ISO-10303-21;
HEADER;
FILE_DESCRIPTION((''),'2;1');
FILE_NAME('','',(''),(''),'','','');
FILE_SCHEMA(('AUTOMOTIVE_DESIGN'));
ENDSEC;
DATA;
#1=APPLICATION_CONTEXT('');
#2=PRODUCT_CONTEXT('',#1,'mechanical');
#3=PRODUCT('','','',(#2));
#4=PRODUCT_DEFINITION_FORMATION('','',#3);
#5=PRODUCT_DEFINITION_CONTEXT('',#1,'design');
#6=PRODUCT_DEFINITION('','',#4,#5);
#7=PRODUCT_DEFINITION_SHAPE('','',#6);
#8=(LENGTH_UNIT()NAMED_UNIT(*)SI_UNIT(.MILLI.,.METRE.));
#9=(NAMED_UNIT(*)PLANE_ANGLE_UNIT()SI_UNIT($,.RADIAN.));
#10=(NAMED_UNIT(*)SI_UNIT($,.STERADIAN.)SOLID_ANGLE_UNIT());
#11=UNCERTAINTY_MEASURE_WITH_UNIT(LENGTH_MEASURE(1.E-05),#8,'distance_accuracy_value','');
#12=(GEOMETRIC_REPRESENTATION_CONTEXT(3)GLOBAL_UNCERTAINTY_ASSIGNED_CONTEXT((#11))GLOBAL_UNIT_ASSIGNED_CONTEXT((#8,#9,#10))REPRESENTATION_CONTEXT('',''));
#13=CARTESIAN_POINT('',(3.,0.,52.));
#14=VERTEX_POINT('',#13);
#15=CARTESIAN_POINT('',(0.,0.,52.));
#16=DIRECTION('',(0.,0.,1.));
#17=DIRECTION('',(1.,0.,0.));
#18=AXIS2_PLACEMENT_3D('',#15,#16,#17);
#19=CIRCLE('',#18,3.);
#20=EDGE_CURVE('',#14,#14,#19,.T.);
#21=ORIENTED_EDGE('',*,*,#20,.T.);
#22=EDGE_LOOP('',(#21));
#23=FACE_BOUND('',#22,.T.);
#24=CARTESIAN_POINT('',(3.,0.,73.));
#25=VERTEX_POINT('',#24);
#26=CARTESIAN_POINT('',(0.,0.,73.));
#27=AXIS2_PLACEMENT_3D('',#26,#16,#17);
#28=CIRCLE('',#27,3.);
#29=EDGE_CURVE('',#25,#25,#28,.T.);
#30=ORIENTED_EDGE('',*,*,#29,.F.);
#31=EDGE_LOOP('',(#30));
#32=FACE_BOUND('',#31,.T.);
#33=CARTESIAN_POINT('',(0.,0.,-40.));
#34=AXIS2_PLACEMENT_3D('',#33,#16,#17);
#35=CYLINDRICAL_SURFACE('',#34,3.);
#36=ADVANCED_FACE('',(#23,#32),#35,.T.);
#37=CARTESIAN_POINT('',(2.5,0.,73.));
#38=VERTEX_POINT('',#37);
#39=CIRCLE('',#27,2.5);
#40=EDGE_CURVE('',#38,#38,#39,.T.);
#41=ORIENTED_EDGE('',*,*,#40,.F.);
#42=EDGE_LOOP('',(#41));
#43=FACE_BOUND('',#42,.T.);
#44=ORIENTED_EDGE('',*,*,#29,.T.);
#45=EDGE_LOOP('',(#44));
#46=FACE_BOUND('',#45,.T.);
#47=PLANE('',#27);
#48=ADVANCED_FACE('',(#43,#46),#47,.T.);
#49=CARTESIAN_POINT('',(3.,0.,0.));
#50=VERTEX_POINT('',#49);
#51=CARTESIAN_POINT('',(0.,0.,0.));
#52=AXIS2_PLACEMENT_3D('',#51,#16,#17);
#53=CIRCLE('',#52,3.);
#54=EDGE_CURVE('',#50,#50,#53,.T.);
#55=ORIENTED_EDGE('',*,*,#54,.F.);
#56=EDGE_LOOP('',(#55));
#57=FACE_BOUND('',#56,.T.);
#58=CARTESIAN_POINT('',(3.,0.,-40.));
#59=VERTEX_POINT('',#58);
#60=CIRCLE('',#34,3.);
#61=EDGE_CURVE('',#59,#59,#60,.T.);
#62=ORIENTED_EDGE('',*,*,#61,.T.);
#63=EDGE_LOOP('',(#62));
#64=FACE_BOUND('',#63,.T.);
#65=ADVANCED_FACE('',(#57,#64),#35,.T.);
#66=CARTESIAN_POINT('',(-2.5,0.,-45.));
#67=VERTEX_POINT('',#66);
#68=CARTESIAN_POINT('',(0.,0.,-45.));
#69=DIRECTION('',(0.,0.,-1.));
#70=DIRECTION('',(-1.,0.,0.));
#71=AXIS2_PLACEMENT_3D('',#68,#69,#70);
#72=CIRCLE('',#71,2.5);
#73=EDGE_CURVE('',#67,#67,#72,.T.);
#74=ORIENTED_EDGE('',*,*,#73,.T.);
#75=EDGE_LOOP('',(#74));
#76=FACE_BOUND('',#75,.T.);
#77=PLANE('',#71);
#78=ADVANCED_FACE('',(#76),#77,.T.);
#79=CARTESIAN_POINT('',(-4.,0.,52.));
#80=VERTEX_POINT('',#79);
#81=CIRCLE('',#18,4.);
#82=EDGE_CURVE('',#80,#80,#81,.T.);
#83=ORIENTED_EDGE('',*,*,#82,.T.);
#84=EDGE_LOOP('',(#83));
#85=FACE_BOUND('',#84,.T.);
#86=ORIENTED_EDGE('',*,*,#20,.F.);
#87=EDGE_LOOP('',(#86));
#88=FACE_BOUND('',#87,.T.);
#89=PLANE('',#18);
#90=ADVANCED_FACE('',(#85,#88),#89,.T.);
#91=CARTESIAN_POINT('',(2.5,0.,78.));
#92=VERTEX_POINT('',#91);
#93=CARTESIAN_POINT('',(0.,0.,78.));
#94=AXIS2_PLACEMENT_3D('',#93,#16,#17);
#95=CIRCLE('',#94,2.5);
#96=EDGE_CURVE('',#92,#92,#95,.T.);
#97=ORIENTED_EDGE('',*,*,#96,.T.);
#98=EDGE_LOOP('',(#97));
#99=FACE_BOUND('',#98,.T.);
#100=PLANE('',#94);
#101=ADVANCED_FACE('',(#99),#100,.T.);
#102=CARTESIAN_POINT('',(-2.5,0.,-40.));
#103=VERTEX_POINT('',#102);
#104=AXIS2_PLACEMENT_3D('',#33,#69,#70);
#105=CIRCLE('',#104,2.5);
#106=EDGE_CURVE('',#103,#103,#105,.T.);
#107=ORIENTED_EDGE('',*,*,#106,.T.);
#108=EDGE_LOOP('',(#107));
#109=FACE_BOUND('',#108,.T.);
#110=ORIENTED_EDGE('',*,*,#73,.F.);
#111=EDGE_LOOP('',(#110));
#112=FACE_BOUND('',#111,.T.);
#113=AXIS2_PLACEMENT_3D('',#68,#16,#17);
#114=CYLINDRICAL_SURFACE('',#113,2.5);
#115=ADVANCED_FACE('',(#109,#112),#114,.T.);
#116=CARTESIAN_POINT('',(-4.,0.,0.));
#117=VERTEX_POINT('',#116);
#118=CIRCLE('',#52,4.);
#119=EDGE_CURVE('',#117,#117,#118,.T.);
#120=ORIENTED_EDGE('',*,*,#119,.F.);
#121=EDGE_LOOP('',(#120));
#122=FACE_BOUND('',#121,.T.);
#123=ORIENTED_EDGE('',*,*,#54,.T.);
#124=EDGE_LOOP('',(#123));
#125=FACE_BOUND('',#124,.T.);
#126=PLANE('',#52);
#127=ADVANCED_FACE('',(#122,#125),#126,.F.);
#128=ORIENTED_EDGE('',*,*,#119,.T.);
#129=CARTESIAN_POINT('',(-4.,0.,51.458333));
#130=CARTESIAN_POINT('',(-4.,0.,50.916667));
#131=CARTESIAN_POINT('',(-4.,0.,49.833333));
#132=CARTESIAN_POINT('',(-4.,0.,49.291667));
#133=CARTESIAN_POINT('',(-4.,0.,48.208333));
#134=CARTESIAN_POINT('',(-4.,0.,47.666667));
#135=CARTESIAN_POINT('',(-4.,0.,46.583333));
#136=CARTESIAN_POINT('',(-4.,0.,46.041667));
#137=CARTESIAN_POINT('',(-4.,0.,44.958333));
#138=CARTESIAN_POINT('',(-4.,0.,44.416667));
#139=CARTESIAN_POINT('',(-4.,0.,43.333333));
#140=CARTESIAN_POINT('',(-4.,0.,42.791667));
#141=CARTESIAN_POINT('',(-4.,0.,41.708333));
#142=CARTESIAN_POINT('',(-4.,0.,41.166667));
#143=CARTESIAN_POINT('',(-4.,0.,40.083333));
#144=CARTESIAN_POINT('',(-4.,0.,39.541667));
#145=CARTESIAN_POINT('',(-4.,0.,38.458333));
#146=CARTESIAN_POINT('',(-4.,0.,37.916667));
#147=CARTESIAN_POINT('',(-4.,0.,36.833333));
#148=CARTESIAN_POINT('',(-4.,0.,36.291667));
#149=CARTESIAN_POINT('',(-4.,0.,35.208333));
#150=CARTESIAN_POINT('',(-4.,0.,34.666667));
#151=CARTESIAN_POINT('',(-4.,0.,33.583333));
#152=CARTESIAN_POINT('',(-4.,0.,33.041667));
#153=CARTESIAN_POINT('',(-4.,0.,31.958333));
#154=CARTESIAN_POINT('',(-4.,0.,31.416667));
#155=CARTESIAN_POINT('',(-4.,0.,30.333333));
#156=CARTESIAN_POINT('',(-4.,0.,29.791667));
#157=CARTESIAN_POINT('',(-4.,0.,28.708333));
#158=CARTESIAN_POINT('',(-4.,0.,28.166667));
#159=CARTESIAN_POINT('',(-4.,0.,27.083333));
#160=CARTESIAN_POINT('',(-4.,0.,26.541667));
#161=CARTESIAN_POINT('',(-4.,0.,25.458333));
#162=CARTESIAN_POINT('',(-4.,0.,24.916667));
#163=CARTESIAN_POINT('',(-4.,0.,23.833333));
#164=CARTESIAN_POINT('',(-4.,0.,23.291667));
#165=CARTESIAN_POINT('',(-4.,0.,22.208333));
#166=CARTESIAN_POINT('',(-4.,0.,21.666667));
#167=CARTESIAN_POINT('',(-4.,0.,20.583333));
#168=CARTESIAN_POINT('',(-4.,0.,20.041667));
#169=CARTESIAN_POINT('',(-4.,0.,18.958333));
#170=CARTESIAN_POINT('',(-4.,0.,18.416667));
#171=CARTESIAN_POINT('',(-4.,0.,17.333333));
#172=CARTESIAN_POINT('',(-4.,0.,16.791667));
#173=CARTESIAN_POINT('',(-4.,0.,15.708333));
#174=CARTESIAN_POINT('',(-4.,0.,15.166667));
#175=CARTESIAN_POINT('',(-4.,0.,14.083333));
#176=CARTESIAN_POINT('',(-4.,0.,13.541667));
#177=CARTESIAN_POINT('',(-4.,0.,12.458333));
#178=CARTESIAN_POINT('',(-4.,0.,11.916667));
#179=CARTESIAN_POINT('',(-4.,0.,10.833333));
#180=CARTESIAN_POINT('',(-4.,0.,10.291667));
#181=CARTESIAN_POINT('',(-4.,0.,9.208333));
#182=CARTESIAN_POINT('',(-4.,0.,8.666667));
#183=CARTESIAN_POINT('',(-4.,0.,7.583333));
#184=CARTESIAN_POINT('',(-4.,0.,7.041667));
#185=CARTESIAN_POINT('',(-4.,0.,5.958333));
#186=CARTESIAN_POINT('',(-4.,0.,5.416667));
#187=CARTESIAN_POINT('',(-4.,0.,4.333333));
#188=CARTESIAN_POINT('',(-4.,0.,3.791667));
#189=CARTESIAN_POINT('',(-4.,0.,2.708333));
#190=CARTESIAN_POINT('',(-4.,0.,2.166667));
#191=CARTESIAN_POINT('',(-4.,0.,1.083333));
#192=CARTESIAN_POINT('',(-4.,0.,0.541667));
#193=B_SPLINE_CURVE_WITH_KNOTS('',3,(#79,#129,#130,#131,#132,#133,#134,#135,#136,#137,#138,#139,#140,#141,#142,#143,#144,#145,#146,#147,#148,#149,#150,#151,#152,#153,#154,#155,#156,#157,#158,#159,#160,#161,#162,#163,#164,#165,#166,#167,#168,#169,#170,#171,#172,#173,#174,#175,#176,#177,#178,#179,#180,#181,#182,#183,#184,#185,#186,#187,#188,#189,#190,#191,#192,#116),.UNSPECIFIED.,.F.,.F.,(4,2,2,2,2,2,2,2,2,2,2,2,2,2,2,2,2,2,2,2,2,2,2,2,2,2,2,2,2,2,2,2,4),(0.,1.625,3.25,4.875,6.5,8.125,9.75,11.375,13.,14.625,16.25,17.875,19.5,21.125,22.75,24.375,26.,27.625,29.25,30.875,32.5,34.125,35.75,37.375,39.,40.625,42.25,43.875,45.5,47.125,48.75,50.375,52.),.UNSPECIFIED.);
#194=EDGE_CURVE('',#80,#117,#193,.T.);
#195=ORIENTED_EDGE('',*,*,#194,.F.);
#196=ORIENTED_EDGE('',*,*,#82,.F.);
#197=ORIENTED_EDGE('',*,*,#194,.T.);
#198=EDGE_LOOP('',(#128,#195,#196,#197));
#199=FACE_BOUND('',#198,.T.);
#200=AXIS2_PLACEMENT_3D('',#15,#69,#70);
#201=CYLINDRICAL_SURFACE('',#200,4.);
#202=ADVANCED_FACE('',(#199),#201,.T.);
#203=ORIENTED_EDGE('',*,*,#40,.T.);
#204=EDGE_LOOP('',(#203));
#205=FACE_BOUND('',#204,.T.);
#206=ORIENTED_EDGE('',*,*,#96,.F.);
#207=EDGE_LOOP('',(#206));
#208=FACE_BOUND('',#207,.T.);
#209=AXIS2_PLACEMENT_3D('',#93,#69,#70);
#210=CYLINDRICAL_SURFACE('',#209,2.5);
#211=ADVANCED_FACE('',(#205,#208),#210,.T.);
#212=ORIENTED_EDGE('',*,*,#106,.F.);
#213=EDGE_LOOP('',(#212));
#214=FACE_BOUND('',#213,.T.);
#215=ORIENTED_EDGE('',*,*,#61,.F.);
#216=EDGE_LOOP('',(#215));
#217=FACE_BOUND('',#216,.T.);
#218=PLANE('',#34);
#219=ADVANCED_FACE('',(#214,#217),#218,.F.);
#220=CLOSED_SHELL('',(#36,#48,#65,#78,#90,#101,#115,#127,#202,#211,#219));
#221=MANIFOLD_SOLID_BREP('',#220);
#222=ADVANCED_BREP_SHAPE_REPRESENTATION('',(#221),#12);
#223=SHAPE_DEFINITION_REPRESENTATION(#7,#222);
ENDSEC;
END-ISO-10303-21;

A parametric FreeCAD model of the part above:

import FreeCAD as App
import Part
import Sketcher
Q = App.Units.Quantity

doc = App.newDocument("Part")
body = doc.addObject("PartDesign::Body", "Body")

# Sketch on XY plane
sketch1 = body.newObject("Sketcher::SketchObject", "Sketch")
sketch1.AttachmentSupport = (doc.getObject("XY_Plane"), [""])
sketch1.MapMode = "FlatFace"
sketch1.addGeometry(Part.Circle(App.Vector(0, 0, 0), App.Vector(0, 0, 1), 4), False)
sketch1.addConstraint(Sketcher.Constraint("Coincident", 0, 3, -1, 1))
sketch1.addConstraint(Sketcher.Constraint("Diameter", 0, Q("8 mm")))
pad1 = body.newObject("PartDesign::Pad", "Pad")
pad1.Profile = sketch1
pad1.Length = 52

# Sketch on XY plane
sketch2 = body.newObject("Sketcher::SketchObject", "Sketch001")
sketch2.AttachmentSupport = (doc.getObject("XY_Plane"), [""])
sketch2.MapMode = "FlatFace"
sketch2.AttachmentOffset = App.Placement(App.Vector(0, 0, 52), App.Rotation())
sketch2.addGeometry(Part.Circle(App.Vector(0, 0, 0), App.Vector(0, 0, 1), 3), False)
sketch2.addConstraint(Sketcher.Constraint("Coincident", 0, 3, -1, 1))
sketch2.addConstraint(Sketcher.Constraint("Diameter", 0, Q("6 mm")))
pad2 = body.newObject("PartDesign::Pad", "Pad001")
pad2.Profile = sketch2
pad2.Type = "TwoLengths"
pad2.Length = 21
pad2.Length2 = 92

# Sketch on XY plane
sketch3 = body.newObject("Sketcher::SketchObject", "Sketch002")
sketch3.AttachmentSupport = (doc.getObject("XY_Plane"), [""])
sketch3.MapMode = "FlatFace"
sketch3.AttachmentOffset = App.Placement(App.Vector(0, 0, -40), App.Rotation())
sketch3.addGeometry(Part.Circle(App.Vector(0, 0, 0), App.Vector(0, 0, 1), 2.5), False)
sketch3.addConstraint(Sketcher.Constraint("Coincident", 0, 3, -1, 1))
sketch3.addConstraint(Sketcher.Constraint("Diameter", 0, Q("5 mm")))
pad3 = body.newObject("PartDesign::Pad", "Pad002")
pad3.Profile = sketch3
pad3.Length = 5
pad3.Reversed = True

# Sketch on XY plane
sketch4 = body.newObject("Sketcher::SketchObject", "Sketch003")
sketch4.AttachmentSupport = (doc.getObject("XY_Plane"), [""])
sketch4.MapMode = "FlatFace"
sketch4.AttachmentOffset = App.Placement(App.Vector(0, 0, 78), App.Rotation())
sketch4.addGeometry(Part.Circle(App.Vector(0, 0, 0), App.Vector(0, 0, 1), 2.5), False)
sketch4.addConstraint(Sketcher.Constraint("Coincident", 0, 3, -1, 1))
sketch4.addConstraint(Sketcher.Constraint("Diameter", 0, Q("5 mm")))
pad4 = body.newObject("PartDesign::Pad", "Pad003")
pad4.Profile = sketch4
pad4.Length = 5
pad4.Reversed = True

doc.recompute()
